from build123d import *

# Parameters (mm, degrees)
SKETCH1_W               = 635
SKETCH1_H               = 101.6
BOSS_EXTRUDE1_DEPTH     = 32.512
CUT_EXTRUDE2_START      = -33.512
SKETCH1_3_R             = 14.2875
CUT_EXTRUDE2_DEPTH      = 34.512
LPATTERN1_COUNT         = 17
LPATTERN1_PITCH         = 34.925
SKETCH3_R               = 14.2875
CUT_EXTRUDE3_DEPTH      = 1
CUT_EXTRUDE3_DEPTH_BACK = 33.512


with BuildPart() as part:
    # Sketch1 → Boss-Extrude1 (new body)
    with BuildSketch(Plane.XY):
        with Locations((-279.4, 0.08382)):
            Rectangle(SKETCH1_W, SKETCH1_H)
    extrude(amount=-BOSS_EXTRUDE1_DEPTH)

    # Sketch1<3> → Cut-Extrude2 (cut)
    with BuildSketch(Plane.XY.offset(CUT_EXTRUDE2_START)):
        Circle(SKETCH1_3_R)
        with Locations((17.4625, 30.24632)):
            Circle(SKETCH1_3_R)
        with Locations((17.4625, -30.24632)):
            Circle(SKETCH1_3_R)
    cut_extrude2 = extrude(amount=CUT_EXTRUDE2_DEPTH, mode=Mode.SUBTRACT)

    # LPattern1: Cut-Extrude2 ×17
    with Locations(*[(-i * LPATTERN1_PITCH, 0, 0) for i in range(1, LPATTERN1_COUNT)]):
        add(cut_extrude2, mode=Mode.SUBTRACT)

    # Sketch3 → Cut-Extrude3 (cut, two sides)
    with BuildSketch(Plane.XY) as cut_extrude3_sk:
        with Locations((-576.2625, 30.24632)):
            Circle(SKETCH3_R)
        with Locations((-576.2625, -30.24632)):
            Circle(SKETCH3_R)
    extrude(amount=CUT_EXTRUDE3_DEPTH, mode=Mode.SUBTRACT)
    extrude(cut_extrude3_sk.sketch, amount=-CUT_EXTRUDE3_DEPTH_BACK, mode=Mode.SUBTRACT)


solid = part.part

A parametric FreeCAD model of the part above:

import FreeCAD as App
import Part
import Sketcher

V = App.Vector
Q = App.Units.Quantity

doc = App.newDocument("Part")
body = doc.addObject("PartDesign::Body", "Body")

# Sketch on XY plane
sketch1 = body.newObject("Sketcher::SketchObject", "Sketch")
sketch1.AttachmentSupport = (doc.getObject("XY_Plane"), [""])
sketch1.MapMode = "FlatFace"
sketch1.addGeometry(Part.LineSegment(V(-597, 51, 0), V(-597, -51, 0)), False)
sketch1.addGeometry(Part.LineSegment(V(-597, -51, 0), V(38, -51, 0)), False)
sketch1.addGeometry(Part.LineSegment(V(38, -51, 0), V(38, 51, 0)), False)
sketch1.addGeometry(Part.LineSegment(V(38, 51, 0), V(-597, 51, 0)), False)
sketch1.addConstraint(Sketcher.Constraint("Coincident", 0, 2, 1, 1))
sketch1.addConstraint(Sketcher.Constraint("Coincident", 1, 2, 2, 1))
sketch1.addConstraint(Sketcher.Constraint("Coincident", 2, 2, 3, 1))
sketch1.addConstraint(Sketcher.Constraint("Coincident", 3, 2, 0, 1))
sketch1.addConstraint(Sketcher.Constraint("Vertical", 0))
sketch1.addConstraint(Sketcher.Constraint("Horizontal", 1))
sketch1.addConstraint(Sketcher.Constraint("Vertical", 2))
sketch1.addConstraint(Sketcher.Constraint("Horizontal", 3))
sketch1.addConstraint(Sketcher.Constraint("DistanceX", 1, 1, 1, 2, Q("25 in")))
sketch1.addConstraint(Sketcher.Constraint("DistanceY", 0, 2, 0, 1, Q("4 in")))
sketch1.addConstraint(Sketcher.Constraint("DistanceX", 0, 2, -1, 1, Q("23.5 in")))
sketch1.addConstraint(Sketcher.Constraint("DistanceY", 0, 2, -1, 1, Q("1.9967 in")))
pad1 = body.newObject("PartDesign::Pad", "Pad")
pad1.Profile = sketch1
pad1.Length = Q("1.28 in")
pad1.Reversed = True

# Sketch on XY plane
sketch2 = body.newObject("Sketcher::SketchObject", "Sketch001")
sketch2.AttachmentSupport = (doc.getObject("XY_Plane"), [""])
sketch2.MapMode = "FlatFace"
sketch2.AttachmentOffset = App.Placement(V(0, 0, -33.512), App.Rotation())
sketch2.addGeometry(Part.Circle(V(0, 0, 0), V(0, 0, 1), 14), False)
sketch2.addGeometry(Part.Circle(V(17, 30, 0), V(0, 0, 1), 14), False)
sketch2.addGeometry(Part.Circle(V(17, -30, 0), V(0, 0, 1), 14), False)
sketch2.addConstraint(Sketcher.Constraint("Coincident", 0, 3, -1, 1))
sketch2.addConstraint(Sketcher.Constraint("Equal", 0, 1))
sketch2.addConstraint(Sketcher.Constraint("Equal", 1, 2))
sketch2.addConstraint(Sketcher.Constraint("Symmetric", 1, 3, 2, 3, -1))
sketch2.addConstraint(Sketcher.Constraint("Diameter", 0, Q("1.125 in")))
sketch2.addConstraint(Sketcher.Constraint("DistanceX", -1, 1, 1, 3, Q("0.6875 in")))
sketch2.addConstraint(Sketcher.Constraint("DistanceY", -1, 1, 1, 3, Q("1.1908 in")))
pocket1 = body.newObject("PartDesign::Pocket", "Pocket")
pocket1.Profile = sketch2
pocket1.Length = 34.512
pocket1.Reversed = True
doc.recompute()

linearpattern = body.newObject("PartDesign::LinearPattern", "LinearPattern")
linearpattern.Originals = [pocket1]
linearpattern.Direction = (doc.getObject("X_Axis"), [""])
linearpattern.Mode = "offset"
linearpattern.Offset = Q("1.375 in")
linearpattern.Occurrences = 17
linearpattern.Reversed = True
body.Tip = linearpattern

# Sketch on XY plane
sketch3 = body.newObject("Sketcher::SketchObject", "Sketch002")
sketch3.AttachmentSupport = (doc.getObject("XY_Plane"), [""])
sketch3.MapMode = "FlatFace"
sketch3.addGeometry(Part.Circle(V(-576, 30, 0), V(0, 0, 1), 14), False)
sketch3.addGeometry(Part.Circle(V(-576, -30, 0), V(0, 0, 1), 14), False)
sketch3.addConstraint(Sketcher.Constraint("Equal", 0, 1))
sketch3.addConstraint(Sketcher.Constraint("Symmetric", 0, 3, 1, 3, -1))
sketch3.addConstraint(Sketcher.Constraint("Diameter", 0, Q("1.125 in")))
sketch3.addConstraint(Sketcher.Constraint("DistanceX", 0, 3, -1, 1, Q("22.6875 in")))
sketch3.addConstraint(Sketcher.Constraint("DistanceY", -1, 1, 0, 3, Q("1.1908 in")))
pocket2 = body.newObject("PartDesign::Pocket", "Pocket001")
pocket2.Profile = sketch3
pocket2.Type = "ThroughAll"
pocket2.Midplane = True

doc.recompute()
